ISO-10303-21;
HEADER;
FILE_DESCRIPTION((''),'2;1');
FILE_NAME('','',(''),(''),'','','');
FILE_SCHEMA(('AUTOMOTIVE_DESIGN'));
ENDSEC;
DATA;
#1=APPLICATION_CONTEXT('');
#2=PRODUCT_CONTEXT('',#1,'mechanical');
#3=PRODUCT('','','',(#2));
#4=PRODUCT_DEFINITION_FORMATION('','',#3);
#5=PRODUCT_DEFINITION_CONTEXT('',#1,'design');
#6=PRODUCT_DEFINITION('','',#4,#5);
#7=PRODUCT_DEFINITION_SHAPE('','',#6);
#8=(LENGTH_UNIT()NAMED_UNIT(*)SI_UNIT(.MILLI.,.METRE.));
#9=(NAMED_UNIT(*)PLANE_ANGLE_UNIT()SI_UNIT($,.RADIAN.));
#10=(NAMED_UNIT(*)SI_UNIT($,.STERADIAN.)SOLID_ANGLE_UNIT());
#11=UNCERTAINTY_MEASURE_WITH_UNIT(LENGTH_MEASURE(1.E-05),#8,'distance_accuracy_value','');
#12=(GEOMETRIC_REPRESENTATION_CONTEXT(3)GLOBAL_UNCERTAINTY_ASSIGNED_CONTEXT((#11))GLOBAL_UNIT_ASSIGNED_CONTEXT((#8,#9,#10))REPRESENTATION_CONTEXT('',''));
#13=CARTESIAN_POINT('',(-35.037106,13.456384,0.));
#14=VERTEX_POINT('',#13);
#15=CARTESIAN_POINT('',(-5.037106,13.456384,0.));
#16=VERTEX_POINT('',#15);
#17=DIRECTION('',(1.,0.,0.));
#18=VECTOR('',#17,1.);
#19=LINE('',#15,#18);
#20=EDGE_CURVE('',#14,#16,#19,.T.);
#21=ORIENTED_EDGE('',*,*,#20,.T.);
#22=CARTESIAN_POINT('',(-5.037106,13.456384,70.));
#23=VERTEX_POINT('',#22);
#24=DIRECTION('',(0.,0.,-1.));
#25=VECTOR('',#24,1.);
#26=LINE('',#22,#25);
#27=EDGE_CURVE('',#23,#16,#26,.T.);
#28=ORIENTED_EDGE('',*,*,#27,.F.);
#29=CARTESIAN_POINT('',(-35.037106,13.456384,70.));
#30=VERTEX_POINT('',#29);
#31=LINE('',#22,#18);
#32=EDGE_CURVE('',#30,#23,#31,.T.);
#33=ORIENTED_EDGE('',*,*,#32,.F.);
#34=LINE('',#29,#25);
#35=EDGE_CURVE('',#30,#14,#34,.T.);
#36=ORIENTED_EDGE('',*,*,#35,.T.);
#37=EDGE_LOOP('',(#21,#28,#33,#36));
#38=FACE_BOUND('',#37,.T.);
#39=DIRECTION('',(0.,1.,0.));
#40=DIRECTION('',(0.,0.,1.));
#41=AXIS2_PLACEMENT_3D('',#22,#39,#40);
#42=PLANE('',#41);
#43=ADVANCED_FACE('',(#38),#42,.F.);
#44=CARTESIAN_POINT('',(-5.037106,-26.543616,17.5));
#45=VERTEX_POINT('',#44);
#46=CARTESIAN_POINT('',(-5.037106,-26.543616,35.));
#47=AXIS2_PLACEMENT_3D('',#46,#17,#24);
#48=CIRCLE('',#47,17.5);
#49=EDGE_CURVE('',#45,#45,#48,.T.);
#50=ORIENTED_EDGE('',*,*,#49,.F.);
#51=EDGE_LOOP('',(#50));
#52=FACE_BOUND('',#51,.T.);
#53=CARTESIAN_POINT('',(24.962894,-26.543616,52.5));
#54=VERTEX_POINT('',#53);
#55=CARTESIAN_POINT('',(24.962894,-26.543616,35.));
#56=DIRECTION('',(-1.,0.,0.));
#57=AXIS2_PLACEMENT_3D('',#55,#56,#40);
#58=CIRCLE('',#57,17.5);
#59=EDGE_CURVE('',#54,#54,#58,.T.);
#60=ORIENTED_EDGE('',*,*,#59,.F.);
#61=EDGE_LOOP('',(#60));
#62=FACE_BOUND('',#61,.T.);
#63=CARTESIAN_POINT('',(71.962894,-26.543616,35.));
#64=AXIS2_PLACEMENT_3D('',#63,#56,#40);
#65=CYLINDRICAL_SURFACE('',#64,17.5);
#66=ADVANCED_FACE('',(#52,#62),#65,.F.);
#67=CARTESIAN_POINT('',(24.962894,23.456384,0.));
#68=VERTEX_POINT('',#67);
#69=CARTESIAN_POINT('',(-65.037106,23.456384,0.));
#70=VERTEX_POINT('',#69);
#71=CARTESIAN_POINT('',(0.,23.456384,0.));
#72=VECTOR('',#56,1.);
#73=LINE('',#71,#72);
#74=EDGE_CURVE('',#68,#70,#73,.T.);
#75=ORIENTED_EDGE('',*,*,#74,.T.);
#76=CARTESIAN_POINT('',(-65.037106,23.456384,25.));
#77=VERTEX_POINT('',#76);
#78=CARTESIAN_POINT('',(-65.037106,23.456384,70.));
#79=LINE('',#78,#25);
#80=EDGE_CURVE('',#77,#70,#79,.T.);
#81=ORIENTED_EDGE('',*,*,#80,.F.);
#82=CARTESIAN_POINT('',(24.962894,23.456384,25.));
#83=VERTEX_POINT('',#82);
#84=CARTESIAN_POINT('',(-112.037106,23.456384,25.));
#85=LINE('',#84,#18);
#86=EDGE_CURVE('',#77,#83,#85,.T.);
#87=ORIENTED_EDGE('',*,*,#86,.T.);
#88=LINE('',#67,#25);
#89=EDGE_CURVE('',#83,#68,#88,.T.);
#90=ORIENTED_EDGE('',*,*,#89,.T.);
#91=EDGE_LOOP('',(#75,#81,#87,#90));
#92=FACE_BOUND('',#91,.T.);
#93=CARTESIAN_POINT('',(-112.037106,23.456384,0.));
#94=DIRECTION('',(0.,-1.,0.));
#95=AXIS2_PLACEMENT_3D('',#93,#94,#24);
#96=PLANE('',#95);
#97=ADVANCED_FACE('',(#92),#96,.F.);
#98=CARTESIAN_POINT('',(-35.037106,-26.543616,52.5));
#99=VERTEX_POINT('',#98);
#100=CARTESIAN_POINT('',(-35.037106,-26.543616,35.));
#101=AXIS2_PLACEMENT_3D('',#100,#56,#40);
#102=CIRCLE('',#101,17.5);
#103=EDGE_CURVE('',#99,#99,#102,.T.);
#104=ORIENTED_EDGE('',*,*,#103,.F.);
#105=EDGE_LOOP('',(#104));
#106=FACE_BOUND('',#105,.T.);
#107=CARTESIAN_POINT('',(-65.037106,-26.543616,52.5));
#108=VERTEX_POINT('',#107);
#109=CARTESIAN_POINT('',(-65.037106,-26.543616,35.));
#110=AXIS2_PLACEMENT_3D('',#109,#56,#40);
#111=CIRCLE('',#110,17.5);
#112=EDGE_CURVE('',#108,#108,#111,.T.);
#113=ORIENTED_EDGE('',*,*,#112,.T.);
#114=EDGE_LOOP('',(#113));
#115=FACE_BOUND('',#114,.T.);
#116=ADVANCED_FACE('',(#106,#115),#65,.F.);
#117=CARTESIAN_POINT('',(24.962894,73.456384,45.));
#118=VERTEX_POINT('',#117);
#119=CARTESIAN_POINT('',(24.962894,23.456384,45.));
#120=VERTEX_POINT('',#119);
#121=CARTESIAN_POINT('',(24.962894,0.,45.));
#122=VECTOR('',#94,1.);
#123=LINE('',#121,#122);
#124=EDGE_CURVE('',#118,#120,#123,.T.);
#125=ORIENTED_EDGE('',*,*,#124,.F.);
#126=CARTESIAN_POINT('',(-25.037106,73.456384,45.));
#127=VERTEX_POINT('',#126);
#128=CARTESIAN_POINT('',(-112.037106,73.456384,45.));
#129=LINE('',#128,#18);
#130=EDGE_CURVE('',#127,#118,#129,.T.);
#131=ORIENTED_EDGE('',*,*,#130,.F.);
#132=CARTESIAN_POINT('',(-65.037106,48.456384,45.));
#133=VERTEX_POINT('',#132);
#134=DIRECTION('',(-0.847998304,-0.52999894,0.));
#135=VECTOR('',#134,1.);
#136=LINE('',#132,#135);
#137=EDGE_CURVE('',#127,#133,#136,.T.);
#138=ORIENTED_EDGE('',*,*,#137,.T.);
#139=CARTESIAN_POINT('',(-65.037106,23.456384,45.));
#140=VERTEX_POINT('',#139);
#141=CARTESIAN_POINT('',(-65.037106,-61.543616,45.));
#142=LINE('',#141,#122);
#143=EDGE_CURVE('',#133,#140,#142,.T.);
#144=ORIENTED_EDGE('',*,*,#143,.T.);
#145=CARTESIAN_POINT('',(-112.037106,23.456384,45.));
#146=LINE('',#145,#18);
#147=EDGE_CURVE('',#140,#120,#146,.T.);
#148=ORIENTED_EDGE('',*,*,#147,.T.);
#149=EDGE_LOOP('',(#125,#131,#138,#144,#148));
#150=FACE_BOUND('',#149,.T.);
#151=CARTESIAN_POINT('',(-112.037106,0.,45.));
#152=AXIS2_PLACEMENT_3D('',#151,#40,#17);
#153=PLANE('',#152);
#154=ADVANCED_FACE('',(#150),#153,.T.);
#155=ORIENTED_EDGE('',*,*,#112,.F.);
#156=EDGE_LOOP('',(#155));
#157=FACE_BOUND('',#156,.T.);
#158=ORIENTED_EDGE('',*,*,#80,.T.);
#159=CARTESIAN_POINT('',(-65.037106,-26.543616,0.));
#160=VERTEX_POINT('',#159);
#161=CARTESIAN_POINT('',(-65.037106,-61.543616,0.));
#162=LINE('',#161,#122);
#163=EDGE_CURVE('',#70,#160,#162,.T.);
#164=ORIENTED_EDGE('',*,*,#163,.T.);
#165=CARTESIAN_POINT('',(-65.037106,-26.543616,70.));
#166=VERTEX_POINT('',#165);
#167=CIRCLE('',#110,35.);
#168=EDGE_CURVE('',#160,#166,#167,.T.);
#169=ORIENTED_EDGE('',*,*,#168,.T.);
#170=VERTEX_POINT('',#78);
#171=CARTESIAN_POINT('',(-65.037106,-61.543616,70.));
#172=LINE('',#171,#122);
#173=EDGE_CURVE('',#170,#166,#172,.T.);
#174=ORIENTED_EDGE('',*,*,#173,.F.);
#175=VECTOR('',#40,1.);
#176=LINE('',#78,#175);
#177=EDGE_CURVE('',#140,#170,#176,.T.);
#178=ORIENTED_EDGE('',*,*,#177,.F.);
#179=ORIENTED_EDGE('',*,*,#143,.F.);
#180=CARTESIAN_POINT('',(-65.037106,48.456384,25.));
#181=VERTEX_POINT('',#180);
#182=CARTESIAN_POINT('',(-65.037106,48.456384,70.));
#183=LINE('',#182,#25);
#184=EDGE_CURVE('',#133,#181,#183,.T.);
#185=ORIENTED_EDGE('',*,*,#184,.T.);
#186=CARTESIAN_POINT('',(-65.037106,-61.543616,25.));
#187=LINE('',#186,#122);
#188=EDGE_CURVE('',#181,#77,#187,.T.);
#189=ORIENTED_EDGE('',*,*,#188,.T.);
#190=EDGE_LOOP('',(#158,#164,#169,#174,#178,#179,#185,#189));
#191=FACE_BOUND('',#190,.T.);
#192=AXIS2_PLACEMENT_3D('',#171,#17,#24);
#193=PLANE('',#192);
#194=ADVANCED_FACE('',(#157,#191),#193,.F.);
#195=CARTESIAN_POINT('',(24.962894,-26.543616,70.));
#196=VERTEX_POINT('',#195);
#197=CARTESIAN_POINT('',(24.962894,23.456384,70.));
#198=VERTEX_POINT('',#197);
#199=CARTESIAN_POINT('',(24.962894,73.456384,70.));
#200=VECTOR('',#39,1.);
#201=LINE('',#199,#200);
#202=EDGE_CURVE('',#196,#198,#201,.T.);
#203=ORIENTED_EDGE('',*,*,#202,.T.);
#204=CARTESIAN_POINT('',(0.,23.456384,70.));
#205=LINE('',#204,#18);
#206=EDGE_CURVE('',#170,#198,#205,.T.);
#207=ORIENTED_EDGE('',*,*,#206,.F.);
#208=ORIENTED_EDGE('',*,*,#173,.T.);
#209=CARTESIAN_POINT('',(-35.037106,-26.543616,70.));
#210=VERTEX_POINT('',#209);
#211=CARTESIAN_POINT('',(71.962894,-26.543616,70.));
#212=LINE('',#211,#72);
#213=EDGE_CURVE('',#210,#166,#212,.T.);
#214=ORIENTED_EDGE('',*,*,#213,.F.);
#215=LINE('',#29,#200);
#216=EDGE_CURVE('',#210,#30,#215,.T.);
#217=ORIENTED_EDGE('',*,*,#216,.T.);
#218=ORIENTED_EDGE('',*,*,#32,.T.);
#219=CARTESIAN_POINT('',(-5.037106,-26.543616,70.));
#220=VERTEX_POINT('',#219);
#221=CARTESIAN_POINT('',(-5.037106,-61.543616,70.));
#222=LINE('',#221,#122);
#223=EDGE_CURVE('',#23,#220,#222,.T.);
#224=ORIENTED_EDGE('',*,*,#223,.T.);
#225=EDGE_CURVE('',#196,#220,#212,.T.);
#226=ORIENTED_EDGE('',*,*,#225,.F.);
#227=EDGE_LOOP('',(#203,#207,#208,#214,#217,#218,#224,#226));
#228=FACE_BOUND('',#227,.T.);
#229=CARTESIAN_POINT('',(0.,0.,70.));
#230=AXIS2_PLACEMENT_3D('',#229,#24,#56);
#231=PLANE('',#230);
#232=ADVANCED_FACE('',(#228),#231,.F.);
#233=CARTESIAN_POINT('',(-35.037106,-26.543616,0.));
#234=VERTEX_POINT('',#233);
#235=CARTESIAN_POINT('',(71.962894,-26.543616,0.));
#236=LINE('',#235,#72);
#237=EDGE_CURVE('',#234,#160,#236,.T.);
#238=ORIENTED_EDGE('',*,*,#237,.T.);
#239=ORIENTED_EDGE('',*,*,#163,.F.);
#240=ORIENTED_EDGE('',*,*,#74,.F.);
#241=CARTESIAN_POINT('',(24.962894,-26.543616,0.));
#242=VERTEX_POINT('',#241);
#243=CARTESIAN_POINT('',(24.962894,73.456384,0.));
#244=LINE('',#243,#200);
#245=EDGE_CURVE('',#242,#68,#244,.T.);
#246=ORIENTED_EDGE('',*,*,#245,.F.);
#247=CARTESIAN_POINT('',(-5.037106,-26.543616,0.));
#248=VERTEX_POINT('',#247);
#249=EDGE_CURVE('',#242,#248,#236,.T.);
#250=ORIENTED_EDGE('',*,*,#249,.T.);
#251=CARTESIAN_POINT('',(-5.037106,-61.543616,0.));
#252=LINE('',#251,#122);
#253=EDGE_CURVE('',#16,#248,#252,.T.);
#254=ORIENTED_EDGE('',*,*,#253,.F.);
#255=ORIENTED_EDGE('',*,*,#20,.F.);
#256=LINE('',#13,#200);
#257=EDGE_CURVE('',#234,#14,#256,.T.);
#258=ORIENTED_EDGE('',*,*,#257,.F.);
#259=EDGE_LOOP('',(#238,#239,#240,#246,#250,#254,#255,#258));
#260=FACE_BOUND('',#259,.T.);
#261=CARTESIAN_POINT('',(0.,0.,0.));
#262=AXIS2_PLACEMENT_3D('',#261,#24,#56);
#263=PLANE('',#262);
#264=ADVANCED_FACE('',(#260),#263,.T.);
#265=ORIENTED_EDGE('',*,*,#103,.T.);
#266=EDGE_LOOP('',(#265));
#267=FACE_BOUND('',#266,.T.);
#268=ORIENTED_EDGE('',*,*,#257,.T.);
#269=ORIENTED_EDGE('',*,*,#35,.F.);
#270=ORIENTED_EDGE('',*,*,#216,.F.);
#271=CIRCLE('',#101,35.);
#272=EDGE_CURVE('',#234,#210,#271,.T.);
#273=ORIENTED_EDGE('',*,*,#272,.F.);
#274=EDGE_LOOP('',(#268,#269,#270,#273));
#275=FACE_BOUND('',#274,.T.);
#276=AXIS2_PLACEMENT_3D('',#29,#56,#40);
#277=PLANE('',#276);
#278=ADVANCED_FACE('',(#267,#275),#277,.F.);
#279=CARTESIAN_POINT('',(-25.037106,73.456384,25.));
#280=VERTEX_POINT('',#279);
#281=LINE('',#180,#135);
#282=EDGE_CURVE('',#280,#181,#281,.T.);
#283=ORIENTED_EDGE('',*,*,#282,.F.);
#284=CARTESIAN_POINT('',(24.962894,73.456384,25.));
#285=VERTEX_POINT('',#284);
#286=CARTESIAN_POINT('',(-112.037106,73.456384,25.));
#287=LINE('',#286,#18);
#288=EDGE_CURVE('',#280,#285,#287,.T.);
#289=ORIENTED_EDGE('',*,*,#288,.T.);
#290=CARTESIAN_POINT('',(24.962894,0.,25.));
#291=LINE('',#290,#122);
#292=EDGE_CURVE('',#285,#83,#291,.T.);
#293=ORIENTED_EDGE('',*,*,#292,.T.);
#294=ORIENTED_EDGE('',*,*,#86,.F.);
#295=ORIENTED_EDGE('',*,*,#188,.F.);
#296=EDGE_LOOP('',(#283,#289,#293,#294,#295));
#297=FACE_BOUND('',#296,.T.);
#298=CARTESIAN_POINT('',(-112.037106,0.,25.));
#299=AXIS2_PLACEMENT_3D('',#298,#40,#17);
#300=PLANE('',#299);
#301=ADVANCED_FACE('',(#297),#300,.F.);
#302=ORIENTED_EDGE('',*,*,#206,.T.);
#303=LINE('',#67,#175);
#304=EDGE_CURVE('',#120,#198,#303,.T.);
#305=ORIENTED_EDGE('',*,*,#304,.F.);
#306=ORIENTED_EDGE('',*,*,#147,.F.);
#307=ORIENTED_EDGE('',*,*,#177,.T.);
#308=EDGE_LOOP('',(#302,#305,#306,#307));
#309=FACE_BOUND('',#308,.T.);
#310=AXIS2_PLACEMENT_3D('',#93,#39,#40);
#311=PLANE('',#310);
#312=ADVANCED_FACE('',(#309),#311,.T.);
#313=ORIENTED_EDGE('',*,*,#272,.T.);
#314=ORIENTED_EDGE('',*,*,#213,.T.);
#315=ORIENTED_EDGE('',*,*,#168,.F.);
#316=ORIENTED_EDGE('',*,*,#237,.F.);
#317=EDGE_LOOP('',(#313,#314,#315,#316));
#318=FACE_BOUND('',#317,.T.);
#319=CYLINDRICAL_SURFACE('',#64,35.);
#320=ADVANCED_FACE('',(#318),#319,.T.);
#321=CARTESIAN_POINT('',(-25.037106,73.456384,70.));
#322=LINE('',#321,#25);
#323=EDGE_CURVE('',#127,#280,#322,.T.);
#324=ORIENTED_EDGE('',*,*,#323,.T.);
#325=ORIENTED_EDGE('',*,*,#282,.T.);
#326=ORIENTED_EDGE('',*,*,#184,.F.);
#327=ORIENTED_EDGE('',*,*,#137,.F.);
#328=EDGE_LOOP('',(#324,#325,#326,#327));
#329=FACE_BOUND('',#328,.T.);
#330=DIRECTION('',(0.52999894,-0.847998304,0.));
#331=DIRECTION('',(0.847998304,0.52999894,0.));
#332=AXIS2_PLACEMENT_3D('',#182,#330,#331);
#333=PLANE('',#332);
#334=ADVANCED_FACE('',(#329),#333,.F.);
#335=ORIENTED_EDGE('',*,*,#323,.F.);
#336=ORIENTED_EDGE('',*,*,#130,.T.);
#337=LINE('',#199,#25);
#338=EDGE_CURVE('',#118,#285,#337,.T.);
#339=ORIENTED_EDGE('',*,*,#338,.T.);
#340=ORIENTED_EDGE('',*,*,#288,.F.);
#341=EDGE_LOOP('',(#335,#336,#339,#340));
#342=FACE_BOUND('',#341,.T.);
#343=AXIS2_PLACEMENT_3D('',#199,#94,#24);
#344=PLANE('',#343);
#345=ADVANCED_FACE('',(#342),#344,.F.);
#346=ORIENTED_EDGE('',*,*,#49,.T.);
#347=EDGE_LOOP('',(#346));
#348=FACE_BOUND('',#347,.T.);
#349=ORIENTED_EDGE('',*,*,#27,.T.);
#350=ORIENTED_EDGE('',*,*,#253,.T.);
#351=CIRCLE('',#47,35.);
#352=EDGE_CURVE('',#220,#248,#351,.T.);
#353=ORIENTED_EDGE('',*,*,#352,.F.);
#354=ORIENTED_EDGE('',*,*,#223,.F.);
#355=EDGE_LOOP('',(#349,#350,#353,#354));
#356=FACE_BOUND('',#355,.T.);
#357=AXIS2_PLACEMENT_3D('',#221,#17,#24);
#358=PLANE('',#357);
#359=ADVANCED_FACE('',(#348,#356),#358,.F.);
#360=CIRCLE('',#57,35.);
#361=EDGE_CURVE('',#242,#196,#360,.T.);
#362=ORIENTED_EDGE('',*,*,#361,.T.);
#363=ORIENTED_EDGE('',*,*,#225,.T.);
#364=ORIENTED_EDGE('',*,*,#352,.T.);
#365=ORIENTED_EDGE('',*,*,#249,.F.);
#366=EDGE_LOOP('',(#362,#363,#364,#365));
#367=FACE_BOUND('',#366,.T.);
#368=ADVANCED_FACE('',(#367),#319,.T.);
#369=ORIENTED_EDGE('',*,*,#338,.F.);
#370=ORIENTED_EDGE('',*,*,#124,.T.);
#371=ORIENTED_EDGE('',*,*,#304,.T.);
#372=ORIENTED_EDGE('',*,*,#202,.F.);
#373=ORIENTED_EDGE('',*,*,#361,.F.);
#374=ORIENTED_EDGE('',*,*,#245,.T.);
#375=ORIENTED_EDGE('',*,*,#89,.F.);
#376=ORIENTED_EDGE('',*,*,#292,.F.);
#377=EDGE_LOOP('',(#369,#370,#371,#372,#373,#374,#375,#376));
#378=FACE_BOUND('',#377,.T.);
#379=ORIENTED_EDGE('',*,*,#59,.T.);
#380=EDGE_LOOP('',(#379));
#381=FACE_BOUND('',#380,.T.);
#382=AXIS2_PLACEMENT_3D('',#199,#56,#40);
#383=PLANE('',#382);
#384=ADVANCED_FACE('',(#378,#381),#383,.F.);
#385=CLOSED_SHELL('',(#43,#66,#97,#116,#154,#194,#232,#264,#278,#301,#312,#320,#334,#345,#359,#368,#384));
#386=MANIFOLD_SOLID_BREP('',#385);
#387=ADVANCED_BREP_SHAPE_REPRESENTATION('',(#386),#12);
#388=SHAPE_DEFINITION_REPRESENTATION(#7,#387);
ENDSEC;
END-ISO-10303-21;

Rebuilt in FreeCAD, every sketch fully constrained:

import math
import FreeCAD as App
import Part
import Sketcher

V = App.Vector
Q = App.Units.Quantity


def add_polygon(sketch, points):
    """Adds a closed chain of lines whose ends are joined by coincident constraints."""
    first, n = sketch.GeometryCount, len(points)
    for a, b in zip(points, points[1:] + points[:1]):
        sketch.addGeometry(Part.LineSegment(App.Vector(*a, 0), App.Vector(*b, 0)), False)
    for i in range(n):
        sketch.addConstraint(Sketcher.Constraint("Coincident", first + i, 2, first + (i + 1) % n, 1))

doc = App.newDocument("Part")
body = doc.addObject("PartDesign::Body", "Body")

# Sketch on XY plane
sketch1 = body.newObject("Sketcher::SketchObject", "Sketch")
sketch1.AttachmentSupport = (doc.getObject("XY_Plane"), [""])
sketch1.MapMode = "FlatFace"
add_polygon(sketch1, [(24.962894, -61.543616), (24.962894, 73.456384), (-25.037106, 73.456384), (-65.037106, 48.456384), (-65.037106, -61.543616), (-35.037106, -61.543616), (-35.037106, 13.456384), (-5.037106, 13.456384), (-5.037106, -61.543616)])  # lines 0-8
sketch1.addConstraint([
    Sketcher.Constraint("Vertical", 0),
    Sketcher.Constraint("Horizontal", 1),
    Sketcher.Constraint("Vertical", 3),
    Sketcher.Constraint("Horizontal", 4),
    Sketcher.Constraint("Vertical", 5),
    Sketcher.Constraint("Horizontal", 6),
    Sketcher.Constraint("Vertical", 7),
    Sketcher.Constraint("Horizontal", 8),
    Sketcher.Constraint("Horizontal", 4, 2, 7, 2),
    Sketcher.Constraint("Equal", 4, 6),
    Sketcher.Constraint("Equal", 6, 8),
    Sketcher.Constraint("DistanceX", 1, 2, 1, 1, Q("50 mm")),
    Sketcher.Constraint("DistanceX", 4, 1, 4, 2, Q("30 mm")),
    Sketcher.Constraint("DistanceY", 0, 1, 0, 2, Q("135 mm")),
    Sketcher.Constraint("DistanceY", 3, 2, 3, 1, Q("110 mm")),
    Sketcher.Constraint("DistanceY", 5, 1, 5, 2, Q("75 mm")),
    Sketcher.Constraint("DistanceX", -1, 1, 0, 2, Q("24.962894 mm")),
    Sketcher.Constraint("DistanceY", -1, 1, 0, 2, Q("73.456384 mm")),
])
pad1 = body.newObject("PartDesign::Pad", "Pad")
pad1.Profile = sketch1
pad1.Length = 70

# Sketch on YZ plane
sketch2 = body.newObject("Sketcher::SketchObject", "Sketch001")
sketch2.AttachmentSupport = (doc.getObject("YZ_Plane"), [""])
sketch2.MapMode = "FlatFace"
sketch2.AttachmentOffset = App.Placement(V(0, 0, -65.037106), App.Rotation())
sketch2.addGeometry(Part.Circle(V(-26.543616, 35, 0), V(0, 0, 1), 17.5), False)
sketch2.addConstraint([
    Sketcher.Constraint("Diameter", 0, Q("35 mm")),
    Sketcher.Constraint("DistanceY", -1, 1, 0, 3, Q("35 mm")),
    Sketcher.Constraint("DistanceX", 0, 3, -1, 1, Q("26.543616 mm")),
])
pocket1 = body.newObject("PartDesign::Pocket", "Pocket")
pocket1.Profile = sketch2
pocket1.Length = 137
pocket1.Reversed = True

# Sketch on YZ plane
sketch3 = body.newObject("Sketcher::SketchObject", "Sketch002")
sketch3.AttachmentSupport = (doc.getObject("YZ_Plane"), [""])
sketch3.MapMode = "FlatFace"
sketch3.AttachmentOffset = App.Placement(V(0, 0, 24.962894), App.Rotation())
add_polygon(sketch3, [(73.456384, 70), (23.456384, 70), (23.456384, 45), (73.456384, 45)])  # lines 0-3
sketch3.addConstraint([
    Sketcher.Constraint("Horizontal", 0),
    Sketcher.Constraint("Vertical", 1),
    Sketcher.Constraint("Horizontal", 2),
    Sketcher.Constraint("Vertical", 3),
    Sketcher.Constraint("DistanceX", 0, 2, 0, 1, Q("50 mm")),
    Sketcher.Constraint("DistanceY", 1, 2, 1, 1, Q("25 mm")),
    Sketcher.Constraint("DistanceY", -1, 1, 0, 2, Q("70 mm")),
    Sketcher.Constraint("DistanceX", -1, 1, 0, 2, Q("23.456384 mm")),
])
pocket2 = body.newObject("PartDesign::Pocket", "Pocket001")
pocket2.Profile = sketch3
pocket2.Length = 137

# Sketch on YZ plane
sketch4 = body.newObject("Sketcher::SketchObject", "Sketch003")
sketch4.AttachmentSupport = (doc.getObject("YZ_Plane"), [""])
sketch4.MapMode = "FlatFace"
sketch4.AttachmentOffset = App.Placement(V(0, 0, 24.962894), App.Rotation())
add_polygon(sketch4, [(73.456384, 25), (23.456384, 25), (23.456384, 0), (73.456384, 0)])  # lines 0-3
sketch4.addConstraint([
    Sketcher.Constraint("Horizontal", 0),
    Sketcher.Constraint("Vertical", 1),
    Sketcher.Constraint("Horizontal", 2),
    Sketcher.Constraint("Vertical", 3),
    Sketcher.Constraint("PointOnObject", 1, 2, -1),
    Sketcher.Constraint("DistanceX", 0, 2, 0, 1, Q("50 mm")),
    Sketcher.Constraint("DistanceY", 1, 2, 1, 1, Q("25 mm")),
    Sketcher.Constraint("DistanceX", -1, 1, 0, 2, Q("23.456384 mm")),
])
pocket3 = body.newObject("PartDesign::Pocket", "Pocket002")
pocket3.Profile = sketch4
pocket3.Length = 137

# Sketch on YZ plane
sketch5 = body.newObject("Sketcher::SketchObject", "Sketch004")
sketch5.AttachmentSupport = (doc.getObject("YZ_Plane"), [""])
sketch5.MapMode = "FlatFace"
sketch5.AttachmentOffset = App.Placement(V(0, 0, -65.037106), App.Rotation())
sketch5.addGeometry([
    Part.ArcOfCircle(Part.Circle(V(-26.543616, 35, 0), V(0, 0, 1), 35), math.radians(180), math.radians(270)),  # 0
    Part.LineSegment(V(-26.543616, 0, 0), V(-61.543616, 0, 0)),  # 1
    Part.LineSegment(V(-61.543616, 0, 0), V(-61.543616, 35, 0)),  # 2
    Part.LineSegment(V(-61.543616, 70, 0), V(-26.543616, 70, 0)),  # 3
    Part.ArcOfCircle(Part.Circle(V(-26.543616, 35, 0), V(0, 0, 1), 35), math.radians(90), math.radians(180)),  # 4
    Part.LineSegment(V(-61.543616, 35, 0), V(-61.543616, 70, 0)),  # 5
], False)
sketch5.addConstraint([
    Sketcher.Constraint("Tangent", 0, 2, 1, 1),
    Sketcher.Constraint("Coincident", 1, 2, 2, 1),
    Sketcher.Constraint("Tangent", 2, 2, 0, 1),
    Sketcher.Constraint("Tangent", 3, 2, 4, 1),
    Sketcher.Constraint("Tangent", 4, 2, 5, 1),
    Sketcher.Constraint("Coincident", 5, 2, 3, 1),
    Sketcher.Constraint("Horizontal", 1),
    Sketcher.Constraint("Vertical", 2),
    Sketcher.Constraint("Horizontal", 3),
    Sketcher.Constraint("Vertical", 5),
    Sketcher.Constraint("Coincident", 4, 3, 0, 3),
    Sketcher.Constraint("Equal", 0, 4),
    Sketcher.Constraint("PointOnObject", 0, 2, -1),
    Sketcher.Constraint("Radius", 0, Q("35 mm")),
    Sketcher.Constraint("DistanceX", 0, 3, -1, 1, Q("26.543616 mm")),
])
pocket4 = body.newObject("PartDesign::Pocket", "Pocket003")
pocket4.Profile = sketch5
pocket4.Length = 137
pocket4.Reversed = True

doc.recompute()
